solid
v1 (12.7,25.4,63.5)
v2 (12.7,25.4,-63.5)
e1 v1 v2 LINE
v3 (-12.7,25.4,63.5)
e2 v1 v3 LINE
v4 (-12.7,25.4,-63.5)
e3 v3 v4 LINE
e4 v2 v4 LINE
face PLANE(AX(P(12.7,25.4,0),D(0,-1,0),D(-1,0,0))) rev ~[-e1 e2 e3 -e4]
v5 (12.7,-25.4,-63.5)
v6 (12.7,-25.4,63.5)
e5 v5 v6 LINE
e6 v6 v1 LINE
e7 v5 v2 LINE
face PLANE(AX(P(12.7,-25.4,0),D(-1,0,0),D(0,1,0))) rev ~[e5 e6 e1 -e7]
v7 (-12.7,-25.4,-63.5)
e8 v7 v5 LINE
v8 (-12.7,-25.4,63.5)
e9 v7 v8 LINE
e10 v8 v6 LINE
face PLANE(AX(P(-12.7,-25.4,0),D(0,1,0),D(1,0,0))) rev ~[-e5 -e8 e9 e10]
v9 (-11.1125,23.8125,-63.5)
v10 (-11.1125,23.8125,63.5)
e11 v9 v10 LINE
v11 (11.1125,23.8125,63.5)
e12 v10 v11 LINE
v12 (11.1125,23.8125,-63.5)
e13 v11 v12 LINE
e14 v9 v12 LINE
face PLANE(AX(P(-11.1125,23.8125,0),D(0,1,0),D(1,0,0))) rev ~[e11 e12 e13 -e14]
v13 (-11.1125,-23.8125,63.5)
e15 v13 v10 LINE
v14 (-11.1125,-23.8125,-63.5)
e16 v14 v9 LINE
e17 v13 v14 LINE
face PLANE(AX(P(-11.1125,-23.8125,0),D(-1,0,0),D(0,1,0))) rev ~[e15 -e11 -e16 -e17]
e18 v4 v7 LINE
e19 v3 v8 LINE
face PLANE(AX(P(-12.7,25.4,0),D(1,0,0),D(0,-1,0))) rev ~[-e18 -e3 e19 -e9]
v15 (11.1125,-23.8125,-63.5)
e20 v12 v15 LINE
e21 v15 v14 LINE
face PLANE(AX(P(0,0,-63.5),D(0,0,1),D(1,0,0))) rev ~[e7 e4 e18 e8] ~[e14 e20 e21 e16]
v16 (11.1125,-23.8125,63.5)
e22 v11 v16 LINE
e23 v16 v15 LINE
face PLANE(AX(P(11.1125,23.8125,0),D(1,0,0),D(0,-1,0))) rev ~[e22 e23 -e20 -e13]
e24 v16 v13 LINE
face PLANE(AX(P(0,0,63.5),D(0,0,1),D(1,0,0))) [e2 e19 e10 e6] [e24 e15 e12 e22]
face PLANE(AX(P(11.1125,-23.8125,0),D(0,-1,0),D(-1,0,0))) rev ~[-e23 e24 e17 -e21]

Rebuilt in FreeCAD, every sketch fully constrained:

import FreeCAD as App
import Part
import Sketcher
Q = App.Units.Quantity


def add_polygon(sketch, points):
    """Adds a closed chain of lines whose ends are joined by coincident constraints."""
    first, n = sketch.GeometryCount, len(points)
    for a, b in zip(points, points[1:] + points[:1]):
        sketch.addGeometry(Part.LineSegment(App.Vector(*a, 0), App.Vector(*b, 0)), False)
    for i in range(n):
        sketch.addConstraint(Sketcher.Constraint("Coincident", first + i, 2, first + (i + 1) % n, 1))

doc = App.newDocument("Part")
body = doc.addObject("PartDesign::Body", "Body")

# Sketch on XY plane
sketch1 = body.newObject("Sketcher::SketchObject", "Sketch")
sketch1.AttachmentSupport = (doc.getObject("XY_Plane"), [""])
sketch1.MapMode = "FlatFace"
add_polygon(sketch1, [(-13, 25), (-13, -25), (13, -25), (13, 25)])  # lines 0-3
add_polygon(sketch1, [(-11, -24), (-11, 24), (11, 24), (11, -24)])  # lines 4-7
sketch1.addConstraint([
    Sketcher.Constraint("Vertical", 0),
    Sketcher.Constraint("Horizontal", 1),
    Sketcher.Constraint("Vertical", 2),
    Sketcher.Constraint("Horizontal", 3),
    Sketcher.Constraint("Vertical", 4),
    Sketcher.Constraint("Horizontal", 5),
    Sketcher.Constraint("Vertical", 6),
    Sketcher.Constraint("Horizontal", 7),
    Sketcher.Constraint("Symmetric", 0, 2, 2, 2, -1, 1),
    Sketcher.Constraint("Symmetric", 4, 2, 6, 2, -1, 1),
    Sketcher.Constraint("DistanceX", 1, 1, 1, 2, Q("1 in")),
    Sketcher.Constraint("DistanceY", 0, 2, 0, 1, Q("2 in")),
    Sketcher.Constraint("DistanceX", 3, 2, 4, 2, Q("0.0625 in")),
    Sketcher.Constraint("DistanceY", 4, 2, 3, 2, Q("0.0625 in")),
])
pad1 = body.newObject("PartDesign::Pad", "Pad")
pad1.Profile = sketch1
pad1.Length = Q("5 in")
pad1.Midplane = True

doc.recompute()
